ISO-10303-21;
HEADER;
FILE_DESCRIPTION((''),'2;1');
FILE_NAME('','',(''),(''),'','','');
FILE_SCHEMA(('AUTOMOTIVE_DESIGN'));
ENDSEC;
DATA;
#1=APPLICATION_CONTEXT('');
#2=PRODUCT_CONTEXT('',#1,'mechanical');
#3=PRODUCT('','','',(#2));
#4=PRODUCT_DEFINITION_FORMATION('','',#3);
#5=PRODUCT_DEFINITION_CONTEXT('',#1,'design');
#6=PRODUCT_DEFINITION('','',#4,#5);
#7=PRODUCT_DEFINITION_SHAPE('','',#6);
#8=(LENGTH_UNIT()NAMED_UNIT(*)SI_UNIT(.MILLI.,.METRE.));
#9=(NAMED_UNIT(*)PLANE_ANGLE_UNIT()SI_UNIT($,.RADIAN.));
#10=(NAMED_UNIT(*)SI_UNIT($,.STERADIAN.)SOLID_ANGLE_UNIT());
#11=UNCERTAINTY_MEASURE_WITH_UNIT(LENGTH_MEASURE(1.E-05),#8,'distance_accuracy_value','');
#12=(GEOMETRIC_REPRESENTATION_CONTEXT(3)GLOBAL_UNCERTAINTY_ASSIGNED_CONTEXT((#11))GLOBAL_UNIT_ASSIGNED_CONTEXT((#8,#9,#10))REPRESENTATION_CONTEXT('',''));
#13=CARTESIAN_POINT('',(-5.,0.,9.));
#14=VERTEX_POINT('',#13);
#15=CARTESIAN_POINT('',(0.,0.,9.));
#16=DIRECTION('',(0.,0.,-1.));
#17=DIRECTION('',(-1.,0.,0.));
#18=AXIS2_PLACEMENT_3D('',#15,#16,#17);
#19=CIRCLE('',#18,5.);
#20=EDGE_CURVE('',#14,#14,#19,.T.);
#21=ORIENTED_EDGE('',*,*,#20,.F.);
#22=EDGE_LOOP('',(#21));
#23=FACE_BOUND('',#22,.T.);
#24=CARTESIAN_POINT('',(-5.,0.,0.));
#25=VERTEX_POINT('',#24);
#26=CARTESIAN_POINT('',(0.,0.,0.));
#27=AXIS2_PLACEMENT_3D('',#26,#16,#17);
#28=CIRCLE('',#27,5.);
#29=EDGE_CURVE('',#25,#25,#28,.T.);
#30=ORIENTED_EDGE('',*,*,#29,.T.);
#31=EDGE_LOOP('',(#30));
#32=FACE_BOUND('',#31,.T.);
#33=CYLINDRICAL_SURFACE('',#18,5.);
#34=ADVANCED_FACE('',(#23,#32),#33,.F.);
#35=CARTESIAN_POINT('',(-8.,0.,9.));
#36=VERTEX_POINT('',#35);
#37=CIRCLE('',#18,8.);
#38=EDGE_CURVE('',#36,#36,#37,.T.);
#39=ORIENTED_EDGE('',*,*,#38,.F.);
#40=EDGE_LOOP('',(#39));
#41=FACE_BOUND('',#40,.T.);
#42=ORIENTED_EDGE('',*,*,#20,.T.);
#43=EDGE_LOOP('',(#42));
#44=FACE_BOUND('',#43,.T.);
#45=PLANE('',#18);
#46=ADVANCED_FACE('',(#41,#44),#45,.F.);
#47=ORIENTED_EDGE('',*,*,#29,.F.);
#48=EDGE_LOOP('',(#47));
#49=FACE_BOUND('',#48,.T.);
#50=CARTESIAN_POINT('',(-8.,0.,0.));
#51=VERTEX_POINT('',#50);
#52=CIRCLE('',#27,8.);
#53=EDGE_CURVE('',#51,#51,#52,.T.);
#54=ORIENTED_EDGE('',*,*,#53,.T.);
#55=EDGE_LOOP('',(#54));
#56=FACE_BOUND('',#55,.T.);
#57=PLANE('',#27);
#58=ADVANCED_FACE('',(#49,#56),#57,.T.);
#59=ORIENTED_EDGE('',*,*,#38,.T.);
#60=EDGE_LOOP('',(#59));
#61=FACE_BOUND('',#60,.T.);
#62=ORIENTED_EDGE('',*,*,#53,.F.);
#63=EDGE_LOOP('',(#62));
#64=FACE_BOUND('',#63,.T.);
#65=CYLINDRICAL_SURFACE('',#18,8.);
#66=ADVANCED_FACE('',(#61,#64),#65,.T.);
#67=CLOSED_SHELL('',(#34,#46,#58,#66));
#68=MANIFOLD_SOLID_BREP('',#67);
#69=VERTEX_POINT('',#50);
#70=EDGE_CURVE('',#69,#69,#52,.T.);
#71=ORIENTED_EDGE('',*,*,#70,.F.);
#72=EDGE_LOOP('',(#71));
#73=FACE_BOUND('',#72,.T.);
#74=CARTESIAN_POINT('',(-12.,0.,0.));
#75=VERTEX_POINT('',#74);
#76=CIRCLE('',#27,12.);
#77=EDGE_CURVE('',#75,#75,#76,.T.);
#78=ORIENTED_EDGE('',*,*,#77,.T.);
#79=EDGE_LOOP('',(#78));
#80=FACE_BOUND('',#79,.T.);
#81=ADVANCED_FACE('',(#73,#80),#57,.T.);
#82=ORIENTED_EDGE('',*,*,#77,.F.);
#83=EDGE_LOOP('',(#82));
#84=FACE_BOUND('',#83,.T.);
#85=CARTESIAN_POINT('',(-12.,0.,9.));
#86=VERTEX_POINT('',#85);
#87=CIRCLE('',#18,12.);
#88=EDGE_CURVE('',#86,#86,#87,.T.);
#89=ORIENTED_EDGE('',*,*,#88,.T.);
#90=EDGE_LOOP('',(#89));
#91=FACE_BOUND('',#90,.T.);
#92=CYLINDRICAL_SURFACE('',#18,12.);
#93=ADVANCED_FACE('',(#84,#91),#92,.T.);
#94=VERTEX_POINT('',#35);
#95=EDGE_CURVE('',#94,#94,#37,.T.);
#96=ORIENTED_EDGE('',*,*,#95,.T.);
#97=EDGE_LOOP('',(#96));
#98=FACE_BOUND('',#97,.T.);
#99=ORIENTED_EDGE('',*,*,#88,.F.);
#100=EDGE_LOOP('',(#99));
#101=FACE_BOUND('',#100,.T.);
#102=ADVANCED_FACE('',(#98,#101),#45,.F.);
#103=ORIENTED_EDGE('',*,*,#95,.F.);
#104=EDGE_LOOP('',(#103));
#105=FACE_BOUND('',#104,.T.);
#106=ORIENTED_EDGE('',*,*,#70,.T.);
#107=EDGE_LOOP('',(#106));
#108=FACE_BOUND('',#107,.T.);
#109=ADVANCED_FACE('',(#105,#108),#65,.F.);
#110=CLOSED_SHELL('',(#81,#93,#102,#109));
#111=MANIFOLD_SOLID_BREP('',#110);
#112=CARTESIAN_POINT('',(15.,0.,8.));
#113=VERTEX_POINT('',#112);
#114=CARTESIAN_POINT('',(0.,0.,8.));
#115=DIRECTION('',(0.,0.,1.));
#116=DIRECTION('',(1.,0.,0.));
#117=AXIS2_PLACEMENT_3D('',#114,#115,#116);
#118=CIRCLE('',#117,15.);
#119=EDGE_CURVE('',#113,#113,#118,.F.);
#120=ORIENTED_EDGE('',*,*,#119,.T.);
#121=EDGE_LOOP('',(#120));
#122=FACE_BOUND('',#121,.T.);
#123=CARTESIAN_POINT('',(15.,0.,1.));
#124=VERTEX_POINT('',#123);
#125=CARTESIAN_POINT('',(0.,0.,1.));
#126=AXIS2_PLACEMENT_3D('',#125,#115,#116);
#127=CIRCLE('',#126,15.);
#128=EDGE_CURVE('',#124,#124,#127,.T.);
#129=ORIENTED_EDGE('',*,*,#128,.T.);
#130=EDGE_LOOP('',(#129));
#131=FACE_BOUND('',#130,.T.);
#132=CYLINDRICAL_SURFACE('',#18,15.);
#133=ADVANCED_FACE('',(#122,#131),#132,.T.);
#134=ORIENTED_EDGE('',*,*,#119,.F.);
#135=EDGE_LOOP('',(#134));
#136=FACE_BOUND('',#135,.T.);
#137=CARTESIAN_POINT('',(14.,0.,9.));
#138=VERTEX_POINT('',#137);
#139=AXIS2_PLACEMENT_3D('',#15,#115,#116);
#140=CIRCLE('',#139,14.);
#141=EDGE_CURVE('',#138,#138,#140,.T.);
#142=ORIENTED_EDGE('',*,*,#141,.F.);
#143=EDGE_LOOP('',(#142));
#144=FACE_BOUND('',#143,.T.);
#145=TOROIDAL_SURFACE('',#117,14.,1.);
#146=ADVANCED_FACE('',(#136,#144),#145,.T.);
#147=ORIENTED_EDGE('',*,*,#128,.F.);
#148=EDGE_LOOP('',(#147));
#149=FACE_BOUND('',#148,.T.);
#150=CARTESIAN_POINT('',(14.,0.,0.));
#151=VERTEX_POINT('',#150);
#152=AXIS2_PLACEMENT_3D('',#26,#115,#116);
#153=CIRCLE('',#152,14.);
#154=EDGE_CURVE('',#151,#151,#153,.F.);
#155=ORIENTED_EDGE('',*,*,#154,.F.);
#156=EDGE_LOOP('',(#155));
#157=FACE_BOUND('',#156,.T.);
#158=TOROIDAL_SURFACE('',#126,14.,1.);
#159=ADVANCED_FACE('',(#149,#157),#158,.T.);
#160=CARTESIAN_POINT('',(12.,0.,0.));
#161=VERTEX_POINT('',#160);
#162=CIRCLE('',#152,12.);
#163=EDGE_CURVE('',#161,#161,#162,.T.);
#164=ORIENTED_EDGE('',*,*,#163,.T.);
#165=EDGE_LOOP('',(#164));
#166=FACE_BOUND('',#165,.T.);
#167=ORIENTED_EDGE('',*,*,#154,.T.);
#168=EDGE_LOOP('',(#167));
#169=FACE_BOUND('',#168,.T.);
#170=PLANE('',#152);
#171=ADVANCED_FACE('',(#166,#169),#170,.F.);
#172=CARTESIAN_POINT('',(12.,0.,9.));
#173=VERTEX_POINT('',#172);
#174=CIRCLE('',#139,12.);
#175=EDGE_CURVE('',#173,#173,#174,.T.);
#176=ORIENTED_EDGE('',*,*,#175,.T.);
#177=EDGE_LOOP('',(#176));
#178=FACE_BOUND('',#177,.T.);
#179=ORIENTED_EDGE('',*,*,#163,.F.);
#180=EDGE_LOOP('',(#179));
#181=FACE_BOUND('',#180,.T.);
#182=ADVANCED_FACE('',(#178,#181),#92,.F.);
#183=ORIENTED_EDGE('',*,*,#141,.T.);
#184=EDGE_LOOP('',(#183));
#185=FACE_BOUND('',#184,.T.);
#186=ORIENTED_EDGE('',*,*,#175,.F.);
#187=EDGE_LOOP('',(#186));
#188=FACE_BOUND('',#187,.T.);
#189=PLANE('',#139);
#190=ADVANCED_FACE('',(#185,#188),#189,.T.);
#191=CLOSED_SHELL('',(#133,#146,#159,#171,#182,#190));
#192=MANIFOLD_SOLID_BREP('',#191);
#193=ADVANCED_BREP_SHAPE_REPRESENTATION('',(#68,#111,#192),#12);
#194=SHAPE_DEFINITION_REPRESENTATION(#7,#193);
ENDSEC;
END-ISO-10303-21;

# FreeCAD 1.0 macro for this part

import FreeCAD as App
import Part
import Sketcher


def edges_at(feature, points):
    """Names of the edges that pass closest to the given points."""
    edges = feature.Shape.Edges
    near = lambda p: min(range(len(edges)), key=lambda i: edges[i].distToShape(Part.Vertex(*p))[0])
    return sorted({f"Edge{near(p) + 1}" for p in points})

doc = App.newDocument("Part")
body = doc.addObject("PartDesign::Body", "Body")

# Sketch on XY plane
sketch1 = doc.addObject("Sketcher::SketchObject", "Sketch")
body.addObject(sketch1)
sketch1.AttachmentSupport = (doc.XY_Plane, [""])
sketch1.MapMode = "FlatFace"
sketch1.addGeometry([
    Part.Circle(App.Vector(0, 0, 0), App.Vector(0, 0, 1), 15),
    Part.Circle(App.Vector(0, 0, 0), App.Vector(0, 0, 1), 12),
], False)
sketch1.addConstraint([
    Sketcher.Constraint("Coincident", 0, 3, -1, 1),
    Sketcher.Constraint("Coincident", 1, 3, -1, 1),
    Sketcher.Constraint("Diameter", 0, 30.0),
    Sketcher.Constraint("Diameter", 1, 24.0),
])
pad1 = doc.addObject("PartDesign::Pad", "Pad")
body.addObject(pad1)
pad1.Profile = sketch1
pad1.Length = 9
doc.recompute()

fillet = doc.addObject("PartDesign::Fillet", "Fillet")
body.addObject(fillet)
fillet.Base = (pad1, edges_at(pad1, [(-15, 0, 0), (-15, 0, 9)]))
fillet.Radius = 1
body2 = doc.addObject("PartDesign::Body", "Body001")

# Sketch on XY plane
sketch2 = doc.addObject("Sketcher::SketchObject", "Sketch001")
body2.addObject(sketch2)
sketch2.AttachmentSupport = (doc.getObject("XY_Plane001"), [""])
sketch2.MapMode = "FlatFace"
sketch2.addGeometry([
    Part.Circle(App.Vector(0, 0, 0), App.Vector(0, 0, 1), 8),
    Part.Circle(App.Vector(0, 0, 0), App.Vector(0, 0, 1), 5),
], False)
sketch2.addConstraint([
    Sketcher.Constraint("Coincident", 0, 3, -1, 1),
    Sketcher.Constraint("Coincident", 1, 3, -1, 1),
    Sketcher.Constraint("Diameter", 0, 16.0),
    Sketcher.Constraint("Diameter", 1, 10.0),
])
pad2 = doc.addObject("PartDesign::Pad", "Pad001")
body2.addObject(pad2)
pad2.Profile = sketch2
pad2.Length = 9
body3 = doc.addObject("PartDesign::Body", "Body002")

# Sketch on XY plane
sketch3 = doc.addObject("Sketcher::SketchObject", "Sketch002")
body3.addObject(sketch3)
sketch3.AttachmentSupport = (doc.getObject("XY_Plane002"), [""])
sketch3.MapMode = "FlatFace"
sketch3.addGeometry([
    Part.Circle(App.Vector(0, 0, 0), App.Vector(0, 0, 1), 12),
    Part.Circle(App.Vector(0, 0, 0), App.Vector(0, 0, 1), 8),
], False)
sketch3.addConstraint([
    Sketcher.Constraint("Coincident", 0, 3, -1, 1),
    Sketcher.Constraint("Coincident", 1, 3, -1, 1),
    Sketcher.Constraint("Diameter", 0, 24.0),
    Sketcher.Constraint("Diameter", 1, 16.0),
])
pad3 = doc.addObject("PartDesign::Pad", "Pad002")
body3.addObject(pad3)
pad3.Profile = sketch3
pad3.Length = 9

doc.recompute()
